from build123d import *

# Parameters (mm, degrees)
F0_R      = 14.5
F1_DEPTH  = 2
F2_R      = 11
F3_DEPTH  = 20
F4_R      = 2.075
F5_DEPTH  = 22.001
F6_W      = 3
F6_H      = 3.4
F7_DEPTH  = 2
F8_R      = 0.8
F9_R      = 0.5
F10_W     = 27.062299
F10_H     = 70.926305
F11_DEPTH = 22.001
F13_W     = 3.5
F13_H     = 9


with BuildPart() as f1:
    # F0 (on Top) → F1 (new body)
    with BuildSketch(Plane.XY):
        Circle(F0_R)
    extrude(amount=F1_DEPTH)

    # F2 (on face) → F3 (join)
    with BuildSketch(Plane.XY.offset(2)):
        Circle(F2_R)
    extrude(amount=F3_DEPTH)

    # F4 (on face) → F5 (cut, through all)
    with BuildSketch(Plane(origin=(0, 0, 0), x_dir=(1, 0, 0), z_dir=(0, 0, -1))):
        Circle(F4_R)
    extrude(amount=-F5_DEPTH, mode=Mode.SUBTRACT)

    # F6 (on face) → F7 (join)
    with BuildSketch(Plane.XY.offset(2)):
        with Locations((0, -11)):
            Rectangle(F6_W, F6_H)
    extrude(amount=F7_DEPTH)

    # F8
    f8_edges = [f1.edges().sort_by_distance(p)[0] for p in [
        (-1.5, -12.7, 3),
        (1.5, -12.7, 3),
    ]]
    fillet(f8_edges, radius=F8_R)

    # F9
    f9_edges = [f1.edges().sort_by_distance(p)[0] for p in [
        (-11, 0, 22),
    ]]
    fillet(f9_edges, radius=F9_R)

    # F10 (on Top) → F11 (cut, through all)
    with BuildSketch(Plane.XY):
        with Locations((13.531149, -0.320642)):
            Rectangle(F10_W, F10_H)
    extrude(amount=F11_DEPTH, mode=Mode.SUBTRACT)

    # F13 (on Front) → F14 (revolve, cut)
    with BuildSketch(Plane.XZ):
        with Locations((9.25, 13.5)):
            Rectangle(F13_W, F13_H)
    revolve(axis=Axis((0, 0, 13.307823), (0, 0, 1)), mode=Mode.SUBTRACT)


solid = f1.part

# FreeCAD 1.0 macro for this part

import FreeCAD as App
import Part
import Sketcher

V = App.Vector
Q = App.Units.Quantity


def edges_at(feature, points):
    """Names of the edges that pass closest to the given points."""
    edges = feature.Shape.Edges
    near = lambda p: min(range(len(edges)), key=lambda i: edges[i].distToShape(Part.Vertex(*p))[0])
    return sorted({f"Edge{near(p) + 1}" for p in points})

doc = App.newDocument("Part")
body = doc.addObject("PartDesign::Body", "Body")

# Sketch on XY plane
sketch1 = body.newObject("Sketcher::SketchObject", "Sketch")
sketch1.AttachmentSupport = (doc.getObject("XY_Plane"), [""])
sketch1.MapMode = "FlatFace"
sketch1.addGeometry(Part.Circle(V(0, 0, 0), V(0, 0, 1), 14), False)
sketch1.addConstraint(Sketcher.Constraint("Coincident", 0, 3, -1, 1))
sketch1.addConstraint(Sketcher.Constraint("Diameter", 0, Q("29 mm")))
pad1 = body.newObject("PartDesign::Pad", "Pad")
pad1.Profile = sketch1
pad1.Length = 2

# Sketch on XY plane
sketch2 = body.newObject("Sketcher::SketchObject", "Sketch001")
sketch2.AttachmentSupport = (doc.getObject("XY_Plane"), [""])
sketch2.MapMode = "FlatFace"
sketch2.AttachmentOffset = App.Placement(V(0, 0, 2), App.Rotation())
sketch2.addGeometry(Part.Circle(V(0, 0, 0), V(0, 0, 1), 11), False)
sketch2.addConstraint(Sketcher.Constraint("Coincident", 0, 3, -1, 1))
sketch2.addConstraint(Sketcher.Constraint("Diameter", 0, Q("22 mm")))
pad2 = body.newObject("PartDesign::Pad", "Pad001")
pad2.Profile = sketch2
pad2.Length = 20

# Sketch on XY plane
sketch3 = body.newObject("Sketcher::SketchObject", "Sketch002")
sketch3.AttachmentSupport = (doc.getObject("XY_Plane"), [""])
sketch3.MapMode = "FlatFace"
sketch3.addGeometry(Part.Circle(V(0, 0, 0), V(0, 0, 1), 2.1), False)
sketch3.addConstraint(Sketcher.Constraint("Coincident", 0, 3, -1, 1))
sketch3.addConstraint(Sketcher.Constraint("Diameter", 0, Q("4.15 mm")))
pocket1 = body.newObject("PartDesign::Pocket", "Pocket")
pocket1.Profile = sketch3
pocket1.Type = "ThroughAll"
pocket1.Reversed = True

# Sketch on XY plane
sketch4 = body.newObject("Sketcher::SketchObject", "Sketch003")
sketch4.AttachmentSupport = (doc.getObject("XY_Plane"), [""])
sketch4.MapMode = "FlatFace"
sketch4.AttachmentOffset = App.Placement(V(0, 0, 2), App.Rotation())
sketch4.addGeometry(Part.LineSegment(V(-1.5, -9.3, 0), V(-1.5, -12.7, 0)), False)
sketch4.addGeometry(Part.LineSegment(V(-1.5, -12.7, 0), V(1.5, -12.7, 0)), False)
sketch4.addGeometry(Part.LineSegment(V(1.5, -12.7, 0), V(1.5, -9.3, 0)), False)
sketch4.addGeometry(Part.LineSegment(V(1.5, -9.3, 0), V(-1.5, -9.3, 0)), False)
sketch4.addConstraint(Sketcher.Constraint("Coincident", 0, 2, 1, 1))
sketch4.addConstraint(Sketcher.Constraint("Coincident", 1, 2, 2, 1))
sketch4.addConstraint(Sketcher.Constraint("Coincident", 2, 2, 3, 1))
sketch4.addConstraint(Sketcher.Constraint("Coincident", 3, 2, 0, 1))
sketch4.addConstraint(Sketcher.Constraint("Vertical", 0))
sketch4.addConstraint(Sketcher.Constraint("Horizontal", 1))
sketch4.addConstraint(Sketcher.Constraint("Vertical", 2))
sketch4.addConstraint(Sketcher.Constraint("Horizontal", 3))
sketch4.addConstraint(Sketcher.Constraint("DistanceX", 1, 1, 1, 2, Q("3 mm")))
sketch4.addConstraint(Sketcher.Constraint("DistanceY", 0, 2, 0, 1, Q("3.4 mm")))
sketch4.addConstraint(Sketcher.Constraint("DistanceX", 0, 2, -1, 1, Q("1.5 mm")))
sketch4.addConstraint(Sketcher.Constraint("DistanceY", 0, 2, -1, 1, Q("12.7 mm")))
pad3 = body.newObject("PartDesign::Pad", "Pad002")
pad3.Profile = sketch4
pad3.Length = 2
doc.recompute()

fillet = body.newObject("PartDesign::Fillet", "Fillet")
fillet.Base = (pad3, edges_at(pad3, [(-1.5, -12.7, 3), (1.5, -12.7, 3)]))
fillet.Radius = 0.8
doc.recompute()

fillet2 = body.newObject("PartDesign::Fillet", "Fillet001")
fillet2.Base = (fillet, edges_at(fillet, [(-11, 0, 22)]))
fillet2.Radius = 0.5

# Sketch on XY plane
sketch5 = body.newObject("Sketcher::SketchObject", "Sketch004")
sketch5.AttachmentSupport = (doc.getObject("XY_Plane"), [""])
sketch5.MapMode = "FlatFace"
sketch5.addGeometry(Part.LineSegment(V(0, 35, 0), V(0, -36, 0)), False)
sketch5.addGeometry(Part.LineSegment(V(0, -36, 0), V(27, -36, 0)), False)
sketch5.addGeometry(Part.LineSegment(V(27, -36, 0), V(27, 35, 0)), False)
sketch5.addGeometry(Part.LineSegment(V(27, 35, 0), V(0, 35, 0)), False)
sketch5.addConstraint(Sketcher.Constraint("Coincident", 0, 2, 1, 1))
sketch5.addConstraint(Sketcher.Constraint("Coincident", 1, 2, 2, 1))
sketch5.addConstraint(Sketcher.Constraint("Coincident", 2, 2, 3, 1))
sketch5.addConstraint(Sketcher.Constraint("Coincident", 3, 2, 0, 1))
sketch5.addConstraint(Sketcher.Constraint("Vertical", 0))
sketch5.addConstraint(Sketcher.Constraint("Horizontal", 1))
sketch5.addConstraint(Sketcher.Constraint("Vertical", 2))
sketch5.addConstraint(Sketcher.Constraint("Horizontal", 3))
sketch5.addConstraint(Sketcher.Constraint("PointOnObject", 0, 2, -2))
sketch5.addConstraint(Sketcher.Constraint("DistanceX", 1, 1, 1, 2, Q("27.062299 mm")))
sketch5.addConstraint(Sketcher.Constraint("DistanceY", 0, 2, 0, 1, Q("70.926305 mm")))
sketch5.addConstraint(Sketcher.Constraint("DistanceY", -1, 1, 2, 2, Q("35.142511 mm")))
pocket2 = body.newObject("PartDesign::Pocket", "Pocket001")
pocket2.Profile = sketch5
pocket2.Type = "ThroughAll"
pocket2.Reversed = True

# Sketch on XZ plane
sketch6 = body.newObject("Sketcher::SketchObject", "Sketch005")
sketch6.AttachmentSupport = (doc.getObject("XZ_Plane"), [""])
sketch6.MapMode = "FlatFace"
sketch6.addGeometry(Part.LineSegment(V(7.5, 18, 0), V(7.5, 9, 0)), False)
sketch6.addGeometry(Part.LineSegment(V(7.5, 9, 0), V(11, 9, 0)), False)
sketch6.addGeometry(Part.LineSegment(V(11, 9, 0), V(11, 18, 0)), False)
sketch6.addGeometry(Part.LineSegment(V(11, 18, 0), V(7.5, 18, 0)), False)
sketch6.addConstraint(Sketcher.Constraint("Coincident", 0, 2, 1, 1))
sketch6.addConstraint(Sketcher.Constraint("Coincident", 1, 2, 2, 1))
sketch6.addConstraint(Sketcher.Constraint("Coincident", 2, 2, 3, 1))
sketch6.addConstraint(Sketcher.Constraint("Coincident", 3, 2, 0, 1))
sketch6.addConstraint(Sketcher.Constraint("Vertical", 0))
sketch6.addConstraint(Sketcher.Constraint("Horizontal", 1))
sketch6.addConstraint(Sketcher.Constraint("Vertical", 2))
sketch6.addConstraint(Sketcher.Constraint("Horizontal", 3))
sketch6.addConstraint(Sketcher.Constraint("DistanceY", 0, 2, 0, 1, Q("9 mm")))
sketch6.addConstraint(Sketcher.Constraint("DistanceX", 1, 1, 1, 2, Q("3.5 mm")))
sketch6.addConstraint(Sketcher.Constraint("DistanceY", -1, 1, 0, 2, Q("9 mm")))
sketch6.addConstraint(Sketcher.Constraint("DistanceX", -1, 1, 1, 2, Q("11 mm")))
groove = body.newObject("PartDesign::Groove", "Groove")
groove.Profile = sketch6
groove.ReferenceAxis = (sketch6, ["V_Axis"])
groove.Angle = 360

doc.recompute()
